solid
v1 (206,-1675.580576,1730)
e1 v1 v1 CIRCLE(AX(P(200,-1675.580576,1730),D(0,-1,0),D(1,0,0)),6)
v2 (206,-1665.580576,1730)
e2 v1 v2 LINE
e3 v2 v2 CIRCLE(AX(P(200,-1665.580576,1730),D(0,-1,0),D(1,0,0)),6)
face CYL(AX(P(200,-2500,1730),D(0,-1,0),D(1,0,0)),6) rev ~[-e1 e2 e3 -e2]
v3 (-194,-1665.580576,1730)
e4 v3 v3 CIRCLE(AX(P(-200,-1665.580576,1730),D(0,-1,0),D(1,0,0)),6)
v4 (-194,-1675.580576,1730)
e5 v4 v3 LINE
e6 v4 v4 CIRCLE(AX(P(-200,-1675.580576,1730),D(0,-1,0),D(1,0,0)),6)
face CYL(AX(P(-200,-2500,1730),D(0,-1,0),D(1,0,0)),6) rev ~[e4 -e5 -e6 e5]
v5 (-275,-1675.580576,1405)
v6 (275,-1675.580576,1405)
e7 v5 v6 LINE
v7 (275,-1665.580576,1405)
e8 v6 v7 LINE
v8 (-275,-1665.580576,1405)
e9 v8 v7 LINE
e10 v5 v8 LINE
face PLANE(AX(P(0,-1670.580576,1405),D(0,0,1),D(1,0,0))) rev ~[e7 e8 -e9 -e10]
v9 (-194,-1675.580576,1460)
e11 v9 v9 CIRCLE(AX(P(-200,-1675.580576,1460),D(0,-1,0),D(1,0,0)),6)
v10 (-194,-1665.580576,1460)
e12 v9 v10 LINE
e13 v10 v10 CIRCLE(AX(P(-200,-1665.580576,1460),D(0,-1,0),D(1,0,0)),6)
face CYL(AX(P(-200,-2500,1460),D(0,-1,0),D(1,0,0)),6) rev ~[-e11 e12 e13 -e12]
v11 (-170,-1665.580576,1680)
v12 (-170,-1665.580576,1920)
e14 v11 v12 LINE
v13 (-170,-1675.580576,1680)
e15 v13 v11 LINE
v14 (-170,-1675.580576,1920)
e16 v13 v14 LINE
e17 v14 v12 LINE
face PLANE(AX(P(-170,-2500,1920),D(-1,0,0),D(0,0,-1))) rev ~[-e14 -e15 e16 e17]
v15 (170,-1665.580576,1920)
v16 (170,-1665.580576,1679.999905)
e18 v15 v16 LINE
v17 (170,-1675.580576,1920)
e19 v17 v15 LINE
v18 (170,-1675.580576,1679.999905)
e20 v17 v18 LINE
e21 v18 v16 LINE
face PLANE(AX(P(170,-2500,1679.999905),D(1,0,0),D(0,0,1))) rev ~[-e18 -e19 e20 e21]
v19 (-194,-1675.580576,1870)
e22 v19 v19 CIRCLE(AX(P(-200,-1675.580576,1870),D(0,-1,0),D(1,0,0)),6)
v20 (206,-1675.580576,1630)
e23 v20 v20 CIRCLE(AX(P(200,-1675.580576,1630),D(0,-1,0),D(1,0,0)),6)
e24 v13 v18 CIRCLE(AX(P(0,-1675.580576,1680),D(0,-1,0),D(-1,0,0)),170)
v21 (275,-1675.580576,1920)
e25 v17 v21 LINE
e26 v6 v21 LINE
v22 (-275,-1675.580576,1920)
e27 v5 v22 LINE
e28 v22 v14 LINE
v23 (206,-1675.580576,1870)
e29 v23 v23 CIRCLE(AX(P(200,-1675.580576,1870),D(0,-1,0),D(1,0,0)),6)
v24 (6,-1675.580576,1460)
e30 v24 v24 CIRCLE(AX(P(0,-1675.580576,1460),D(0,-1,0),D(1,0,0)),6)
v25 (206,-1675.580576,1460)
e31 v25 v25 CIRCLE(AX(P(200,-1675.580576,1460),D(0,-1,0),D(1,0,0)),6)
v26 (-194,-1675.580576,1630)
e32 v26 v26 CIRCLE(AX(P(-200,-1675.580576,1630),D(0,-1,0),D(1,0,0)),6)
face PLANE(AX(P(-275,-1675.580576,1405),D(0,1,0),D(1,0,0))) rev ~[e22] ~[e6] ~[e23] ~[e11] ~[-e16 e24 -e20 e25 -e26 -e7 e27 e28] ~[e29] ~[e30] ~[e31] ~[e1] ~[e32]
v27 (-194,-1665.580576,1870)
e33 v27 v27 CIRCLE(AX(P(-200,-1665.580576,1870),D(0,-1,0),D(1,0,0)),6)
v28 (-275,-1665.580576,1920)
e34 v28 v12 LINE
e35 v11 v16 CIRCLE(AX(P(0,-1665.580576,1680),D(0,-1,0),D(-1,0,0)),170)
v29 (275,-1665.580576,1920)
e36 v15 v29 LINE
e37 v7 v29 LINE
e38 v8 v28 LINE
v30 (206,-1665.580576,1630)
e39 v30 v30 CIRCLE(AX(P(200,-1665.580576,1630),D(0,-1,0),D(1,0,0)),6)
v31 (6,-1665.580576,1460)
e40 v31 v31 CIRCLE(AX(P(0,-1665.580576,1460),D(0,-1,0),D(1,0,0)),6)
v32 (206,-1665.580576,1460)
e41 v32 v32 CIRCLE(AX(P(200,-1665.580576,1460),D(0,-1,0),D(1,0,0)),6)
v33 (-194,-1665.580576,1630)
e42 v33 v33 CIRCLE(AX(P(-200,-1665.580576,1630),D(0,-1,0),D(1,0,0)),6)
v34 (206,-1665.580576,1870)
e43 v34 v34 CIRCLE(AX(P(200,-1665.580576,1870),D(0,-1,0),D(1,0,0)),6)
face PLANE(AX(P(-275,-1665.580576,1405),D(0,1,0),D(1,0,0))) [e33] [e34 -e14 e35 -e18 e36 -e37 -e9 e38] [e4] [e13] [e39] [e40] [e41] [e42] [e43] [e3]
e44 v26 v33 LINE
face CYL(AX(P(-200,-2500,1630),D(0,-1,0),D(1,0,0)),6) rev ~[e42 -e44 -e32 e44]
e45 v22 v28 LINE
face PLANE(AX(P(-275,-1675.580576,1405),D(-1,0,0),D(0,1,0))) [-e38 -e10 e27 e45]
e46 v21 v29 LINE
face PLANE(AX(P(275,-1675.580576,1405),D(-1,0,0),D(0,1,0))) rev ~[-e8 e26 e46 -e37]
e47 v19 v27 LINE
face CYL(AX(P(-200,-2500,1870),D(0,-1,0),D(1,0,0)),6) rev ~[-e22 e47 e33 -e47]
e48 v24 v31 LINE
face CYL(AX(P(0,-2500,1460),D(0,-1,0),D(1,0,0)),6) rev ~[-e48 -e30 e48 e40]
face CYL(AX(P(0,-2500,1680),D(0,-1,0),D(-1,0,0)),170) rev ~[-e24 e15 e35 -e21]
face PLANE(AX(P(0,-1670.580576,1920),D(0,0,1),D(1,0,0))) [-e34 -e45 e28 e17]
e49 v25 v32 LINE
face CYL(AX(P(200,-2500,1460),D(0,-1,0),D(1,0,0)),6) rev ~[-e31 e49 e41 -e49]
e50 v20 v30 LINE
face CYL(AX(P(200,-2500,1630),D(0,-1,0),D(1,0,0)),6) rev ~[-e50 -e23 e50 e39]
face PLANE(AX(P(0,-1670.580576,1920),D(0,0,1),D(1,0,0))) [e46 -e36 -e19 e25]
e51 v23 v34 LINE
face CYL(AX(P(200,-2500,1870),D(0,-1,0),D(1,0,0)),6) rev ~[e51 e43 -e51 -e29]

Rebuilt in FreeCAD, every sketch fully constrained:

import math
import FreeCAD as App
import Part
import Sketcher
from FreeCAD import Vector
Q = App.Units.Quantity


def add_polygon(sketch, points):
    """Adds a closed chain of lines whose ends are joined by coincident constraints."""
    first, n = sketch.GeometryCount, len(points)
    for a, b in zip(points, points[1:] + points[:1]):
        sketch.addGeometry(Part.LineSegment(App.Vector(*a, 0), App.Vector(*b, 0)), False)
    for i in range(n):
        sketch.addConstraint(Sketcher.Constraint("Coincident", first + i, 2, first + (i + 1) % n, 1))

doc = App.newDocument("Part")
body = doc.addObject("PartDesign::Body", "Body")
body.AllowCompound = True

# Sketch on XZ plane
sketch1 = doc.addObject("Sketcher::SketchObject", "Sketch")
body.addObject(sketch1)
sketch1.AttachmentSupport = (doc.XZ_Plane, [""])
sketch1.MapMode = "FlatFace"
sketch1.AttachmentOffset = App.Placement(Vector(0, 0, 2500), App.Rotation())
sketch1.addGeometry([
    Part.Circle(Vector(-200, 1730, 0), Vector(0, 0, 1), 6),  # 0
    Part.Circle(Vector(-200, 1870, 0), Vector(0, 0, 1), 6),  # 1
    Part.Circle(Vector(200, 1870, 0), Vector(0, 0, 1), 6),  # 2
    Part.Circle(Vector(200, 1730, 0), Vector(0, 0, 1), 6),  # 3
    Part.Circle(Vector(-200, 1630, 0), Vector(0, 0, 1), 6),  # 4
    Part.Circle(Vector(-200, 1460, 0), Vector(0, 0, 1), 6),  # 5
    Part.Circle(Vector(200, 1630, 0), Vector(0, 0, 1), 6),  # 6
    Part.Circle(Vector(200, 1460, 0), Vector(0, 0, 1), 6),  # 7
    Part.Circle(Vector(0, 1460, 0), Vector(0, 0, 1), 6),  # 8
], False)
sketch1.addConstraint([
    Sketcher.Constraint("Equal", 0, 1),
    Sketcher.Constraint("Equal", 1, 2),
    Sketcher.Constraint("Equal", 2, 3),
    Sketcher.Constraint("Equal", 3, 4),
    Sketcher.Constraint("Equal", 4, 5),
    Sketcher.Constraint("Equal", 5, 6),
    Sketcher.Constraint("Equal", 6, 7),
    Sketcher.Constraint("Equal", 7, 8),
    Sketcher.Constraint("Symmetric", 1, 3, 2, 3, -2),
    Sketcher.Constraint("Symmetric", 0, 3, 3, 3, -2),
    Sketcher.Constraint("Symmetric", 4, 3, 6, 3, -2),
    Sketcher.Constraint("Symmetric", 5, 3, 7, 3, -2),
    Sketcher.Constraint("PointOnObject", 8, 3, -2),
    Sketcher.Constraint("Horizontal", 7, 3, 8, 3),
    Sketcher.Constraint("Vertical", 0, 3, 1, 3),
    Sketcher.Constraint("Vertical", 1, 3, 4, 3),
    Sketcher.Constraint("Vertical", 4, 3, 5, 3),
    Sketcher.Constraint("Diameter", 0, Q("12 mm")),
    Sketcher.Constraint("DistanceX", 0, 3, -1, 1, Q("200 mm")),
    Sketcher.Constraint("DistanceY", -1, 1, 0, 3, Q("1730 mm")),
    Sketcher.Constraint("DistanceY", -1, 1, 1, 3, Q("1870 mm")),
    Sketcher.Constraint("DistanceY", -1, 1, 4, 3, Q("1630 mm")),
    Sketcher.Constraint("DistanceY", -1, 1, 5, 3, Q("1460 mm")),
])
pad1 = doc.addObject("PartDesign::Pad", "Pad")
body.addObject(pad1)
pad1.Profile = sketch1
pad1.Length = 1000
pad1.Reversed = True
body2 = doc.addObject("PartDesign::Body", "Body001")

# Sketch on XZ plane
sketch2 = doc.addObject("Sketcher::SketchObject", "Sketch001")
body2.addObject(sketch2)
sketch2.AttachmentSupport = (doc.getObject("XZ_Plane001"), [""])
sketch2.MapMode = "FlatFace"
sketch2.AttachmentOffset = App.Placement(Vector(0, 0, 2500), App.Rotation())
sketch2.addGeometry([
    Part.LineSegment(Vector(-170, 1920, 0), Vector(-170, 1680, 0)),
    Part.ArcOfCircle(Part.Circle(Vector(0, 1680, 0), Vector(0, 0, 1), 170), math.radians(180), math.radians(359.999968)),
    Part.LineSegment(Vector(170, 1679.999905, 0), Vector(170, 1920, 0)),
    Part.LineSegment(Vector(170, 1920, 0), Vector(-170, 1920, 0)),
], False)
sketch2.addConstraint([
    Sketcher.Constraint("Coincident", 0, 2, 1, 1),
    Sketcher.Constraint("Coincident", 1, 2, 2, 1),
    Sketcher.Constraint("Coincident", 2, 2, 3, 1),
    Sketcher.Constraint("Coincident", 3, 2, 0, 1),
    Sketcher.Constraint("Vertical", 0),
    Sketcher.Constraint("Vertical", 2),
    Sketcher.Constraint("Horizontal", 3),
    Sketcher.Constraint("PointOnObject", 1, 3, -2),
    Sketcher.Constraint("Radius", 1, Q("170 mm")),
    Sketcher.Constraint("DistanceY", 0, 2, 0, 1, Q("240 mm")),
    Sketcher.Constraint("DistanceY", -1, 1, 1, 3, Q("1680 mm")),
    Sketcher.Constraint("DistanceY", -1, 1, 0, 2, Q("1680 mm")),
    Sketcher.Constraint("DistanceY", 2, 1, 2, 2, Q("240.000095 mm")),
])
pad2 = doc.addObject("PartDesign::Pad", "Pad001")
body2.addObject(pad2)
pad2.Profile = sketch2
pad2.Length = 1000
pad2.Reversed = True
body3 = doc.addObject("PartDesign::Body", "Body002")

# Sketch on XY plane
sketch3 = doc.addObject("Sketcher::SketchObject", "Sketch002")
body3.addObject(sketch3)
sketch3.AttachmentSupport = (doc.getObject("XY_Plane002"), [""])
sketch3.MapMode = "FlatFace"
sketch3.AttachmentOffset = App.Placement(Vector(0, 0, 1405), App.Rotation())
add_polygon(sketch3, [(-275, -1666), (-275, -1676), (275, -1676), (275, -1666)])  # lines 0-3
sketch3.addConstraint([
    Sketcher.Constraint("Vertical", 0),
    Sketcher.Constraint("Horizontal", 1),
    Sketcher.Constraint("Vertical", 2),
    Sketcher.Constraint("Horizontal", 3),
    Sketcher.Constraint("DistanceX", 1, 1, 1, 2, Q("550 mm")),
    Sketcher.Constraint("DistanceY", 0, 2, 0, 1, Q("10 mm")),
    Sketcher.Constraint("DistanceX", 0, 2, -1, 1, Q("275 mm")),
    Sketcher.Constraint("DistanceY", 0, 2, -1, 1, Q("1675.580576 mm")),
])
pad3 = doc.addObject("PartDesign::Pad", "Pad002")
body3.addObject(pad3)
pad3.Profile = sketch3
pad3.Length = 515
doc.recompute()

boolean = doc.addObject("PartDesign::Boolean", "Boolean")
body3.addObject(boolean)
boolean.Type = "Cut"
boolean.addObjects([body2])
doc.recompute()

boolean2 = doc.addObject("PartDesign::Boolean", "Boolean001")
body3.addObject(boolean2)
boolean2.Type = "Cut"
boolean2.addObjects([body])

doc.recompute()
